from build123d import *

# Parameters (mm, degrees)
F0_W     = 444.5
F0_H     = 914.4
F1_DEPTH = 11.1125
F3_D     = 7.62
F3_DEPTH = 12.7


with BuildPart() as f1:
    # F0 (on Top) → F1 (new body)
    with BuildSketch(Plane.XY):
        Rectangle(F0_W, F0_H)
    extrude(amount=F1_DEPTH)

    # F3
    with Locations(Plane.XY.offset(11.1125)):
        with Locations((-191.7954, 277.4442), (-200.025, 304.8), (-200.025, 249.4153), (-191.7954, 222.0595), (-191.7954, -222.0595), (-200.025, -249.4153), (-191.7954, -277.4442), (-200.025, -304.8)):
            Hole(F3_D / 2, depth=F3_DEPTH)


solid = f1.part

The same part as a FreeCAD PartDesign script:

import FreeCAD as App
import Part
import Sketcher
from FreeCAD import Vector
Q = App.Units.Quantity

doc = App.newDocument("Part")
body = doc.addObject("PartDesign::Body", "Body")

# Sketch on XY plane
sketch1 = body.newObject("Sketcher::SketchObject", "Sketch")
sketch1.AttachmentSupport = (doc.getObject("XY_Plane"), [""])
sketch1.MapMode = "FlatFace"
sketch1.addGeometry([
    Part.LineSegment(Vector(-222, 457, 0), Vector(-222, -457, 0)),
    Part.LineSegment(Vector(-222, -457, 0), Vector(222, -457, 0)),
    Part.LineSegment(Vector(222, -457, 0), Vector(222, 457, 0)),
    Part.LineSegment(Vector(222, 457, 0), Vector(-222, 457, 0)),
], False)
sketch1.addConstraint([
    Sketcher.Constraint("Coincident", 0, 2, 1, 1),
    Sketcher.Constraint("Coincident", 1, 2, 2, 1),
    Sketcher.Constraint("Coincident", 2, 2, 3, 1),
    Sketcher.Constraint("Coincident", 3, 2, 0, 1),
    Sketcher.Constraint("Vertical", 0),
    Sketcher.Constraint("Horizontal", 1),
    Sketcher.Constraint("Vertical", 2),
    Sketcher.Constraint("Horizontal", 3),
    Sketcher.Constraint("Symmetric", 0, 2, 2, 2, -1, 1),
    Sketcher.Constraint("DistanceY", 0, 2, 0, 1, Q("36 in")),
    Sketcher.Constraint("DistanceX", 1, 1, 1, 2, Q("17.5 in")),
])
pad1 = body.newObject("PartDesign::Pad", "Pad")
pad1.Profile = sketch1
pad1.Length = Q("0.4375 in")

# Sketch on XY plane
sketch2 = body.newObject("Sketcher::SketchObject", "Sketch001")
sketch2.AttachmentSupport = (doc.getObject("XY_Plane"), [""])
sketch2.MapMode = "FlatFace"
sketch2.AttachmentOffset = App.Placement(Vector(0, 0, 0.4375 * 25.4), App.Rotation())
sketch2.addGeometry([
    Part.Circle(Vector(-191.8, 277.4, 0), Vector(0, 0, 1), 3.8),  # 0
    Part.Circle(Vector(-200, 304.8, 0), Vector(0, 0, 1), 3.8),  # 1
    Part.Circle(Vector(-200, 249.4, 0), Vector(0, 0, 1), 3.8),  # 2
    Part.Circle(Vector(-191.8, 222.1, 0), Vector(0, 0, 1), 3.8),  # 3
    Part.Circle(Vector(-191.8, -222.1, 0), Vector(0, 0, 1), 3.8),  # 4
    Part.Circle(Vector(-200, -249.4, 0), Vector(0, 0, 1), 3.8),  # 5
    Part.Circle(Vector(-191.8, -277.4, 0), Vector(0, 0, 1), 3.8),  # 6
    Part.Circle(Vector(-200, -304.8, 0), Vector(0, 0, 1), 3.8),  # 7
], False)
sketch2.addConstraint([
    Sketcher.Constraint("Equal", 0, 1),
    Sketcher.Constraint("Equal", 1, 2),
    Sketcher.Constraint("Equal", 2, 3),
    Sketcher.Constraint("Equal", 3, 4),
    Sketcher.Constraint("Equal", 4, 5),
    Sketcher.Constraint("Equal", 5, 6),
    Sketcher.Constraint("Equal", 6, 7),
    Sketcher.Constraint("Symmetric", 3, 3, 4, 3, -1),
    Sketcher.Constraint("Symmetric", 2, 3, 5, 3, -1),
    Sketcher.Constraint("Symmetric", 0, 3, 6, 3, -1),
    Sketcher.Constraint("Symmetric", 1, 3, 7, 3, -1),
    Sketcher.Constraint("Vertical", 1, 3, 2, 3),
    Sketcher.Constraint("Vertical", 0, 3, 3, 3),
    Sketcher.Constraint("Diameter", 0, Q("0.3 in")),
    Sketcher.Constraint("DistanceY", -1, 1, 1, 3, Q("12 in")),
    Sketcher.Constraint("DistanceX", 0, 3, -1, 1, Q("7.551 in")),
    Sketcher.Constraint("DistanceY", -1, 1, 0, 3, Q("10.923 in")),
    Sketcher.Constraint("DistanceX", 1, 3, -1, 1, Q("7.875 in")),
    Sketcher.Constraint("DistanceY", 3, 3, 2, 3, Q("1.077 in")),
    Sketcher.Constraint("DistanceY", 4, 3, 3, 3, Q("17.485 in")),
])
doc.recompute()
hole = body.newObject("PartDesign::Hole", "Hole")
hole.Profile = sketch2
hole.ThreadType = "None"
hole.Diameter = Q("0.3 in")
hole.DepthType = "Dimension"
hole.Depth = Q("0.5 in")
hole.DrillPoint = "Flat"

doc.recompute()
